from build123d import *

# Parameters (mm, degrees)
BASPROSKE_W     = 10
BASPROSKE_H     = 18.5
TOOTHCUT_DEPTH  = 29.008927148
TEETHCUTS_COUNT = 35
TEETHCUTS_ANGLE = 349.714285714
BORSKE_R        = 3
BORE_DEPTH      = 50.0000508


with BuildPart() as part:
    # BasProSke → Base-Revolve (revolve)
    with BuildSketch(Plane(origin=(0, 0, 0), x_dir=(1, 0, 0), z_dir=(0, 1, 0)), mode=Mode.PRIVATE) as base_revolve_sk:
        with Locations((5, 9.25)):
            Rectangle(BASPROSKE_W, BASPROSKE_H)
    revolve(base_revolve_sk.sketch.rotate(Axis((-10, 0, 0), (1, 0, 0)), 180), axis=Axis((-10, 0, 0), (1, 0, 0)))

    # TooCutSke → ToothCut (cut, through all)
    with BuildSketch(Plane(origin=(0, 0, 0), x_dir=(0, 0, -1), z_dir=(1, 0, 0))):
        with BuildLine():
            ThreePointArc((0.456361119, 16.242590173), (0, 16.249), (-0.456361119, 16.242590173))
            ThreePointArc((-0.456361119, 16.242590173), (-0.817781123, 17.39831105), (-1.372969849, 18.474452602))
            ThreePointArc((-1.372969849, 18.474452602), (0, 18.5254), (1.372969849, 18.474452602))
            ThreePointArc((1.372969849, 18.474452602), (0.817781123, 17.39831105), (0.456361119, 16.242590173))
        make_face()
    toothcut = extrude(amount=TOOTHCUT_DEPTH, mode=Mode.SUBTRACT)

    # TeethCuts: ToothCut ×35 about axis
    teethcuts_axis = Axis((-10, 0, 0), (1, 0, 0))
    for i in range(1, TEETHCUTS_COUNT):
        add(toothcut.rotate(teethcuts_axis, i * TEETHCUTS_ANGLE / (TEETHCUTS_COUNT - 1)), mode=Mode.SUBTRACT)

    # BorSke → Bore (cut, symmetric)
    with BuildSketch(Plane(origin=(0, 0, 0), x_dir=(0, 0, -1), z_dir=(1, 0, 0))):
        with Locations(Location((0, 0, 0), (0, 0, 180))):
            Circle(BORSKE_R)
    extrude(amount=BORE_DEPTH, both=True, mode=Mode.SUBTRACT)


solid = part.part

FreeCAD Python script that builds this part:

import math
import FreeCAD as App
import Part
import Sketcher
Q = App.Units.Quantity


def add_polygon(sketch, points):
    """Adds a closed chain of lines whose ends are joined by coincident constraints."""
    first, n = sketch.GeometryCount, len(points)
    for a, b in zip(points, points[1:] + points[:1]):
        sketch.addGeometry(Part.LineSegment(App.Vector(*a, 0), App.Vector(*b, 0)), False)
    for i in range(n):
        sketch.addConstraint(Sketcher.Constraint("Coincident", first + i, 2, first + (i + 1) % n, 1))

doc = App.newDocument("Part")
body = doc.addObject("PartDesign::Body", "Body")

sketch1 = body.newObject("Sketcher::SketchObject", "Sketch")
sketch1.AttachmentSupport = (doc.getObject("XZ_Plane"), [""])
sketch1.MapMode = "FlatFace"
add_polygon(sketch1, [(0, -18), (0, 0), (10, 0), (10, -18)])
sketch1.addConstraint([
    Sketcher.Constraint("Vertical", 0),
    Sketcher.Constraint("Horizontal", 1),
    Sketcher.Constraint("Vertical", 2),
    Sketcher.Constraint("Horizontal", 3),
    Sketcher.Constraint("Coincident", 0, 2, -1, 1),
    Sketcher.Constraint("DistanceX", 1, 1, 1, 2, Q("10 mm")),
    Sketcher.Constraint("DistanceY", 0, 1, 0, 2, Q("18.5 mm")),
])
revolution = body.newObject("PartDesign::Revolution", "Revolution")
revolution.Profile = sketch1
revolution.ReferenceAxis = (sketch1, ["H_Axis"])
revolution.Angle = 360

sketch2 = body.newObject("Sketcher::SketchObject", "Sketch001")
sketch2.AttachmentSupport = (doc.getObject("YZ_Plane"), [""])
sketch2.MapMode = "FlatFace"
sketch2.addGeometry([
    Part.ArcOfCircle(Part.Circle(App.Vector(0, 0, 0), App.Vector(0, 0, 1), 16.2), math.radians(-1.61), math.radians(1.61)),
    Part.ArcOfCircle(Part.Circle(App.Vector(14.7, -7.3, 0), App.Vector(0, 0, 1), 7), math.radians(57.75), math.radians(77.6)),
    Part.ArcOfCircle(Part.Circle(App.Vector(0, 0, 0), App.Vector(0, 0, 1), 18.5), math.radians(-4.25), math.radians(4.25)),
    Part.ArcOfCircle(Part.Circle(App.Vector(14.7, 7.3, 0), App.Vector(0, 0, 1), 7), math.radians(-77.6), math.radians(-57.75)),
], False)
sketch2.addConstraint([
    Sketcher.Constraint("Coincident", 0, 1, 1, 2),
    Sketcher.Constraint("Coincident", 1, 1, 2, 1),
    Sketcher.Constraint("Coincident", 2, 2, 3, 2),
    Sketcher.Constraint("Coincident", 3, 1, 0, 2),
    Sketcher.Constraint("Coincident", 0, 3, -1, 1),
    Sketcher.Constraint("Coincident", 2, 3, -1, 1),
    Sketcher.Constraint("Equal", 1, 3),
    Sketcher.Constraint("Symmetric", 1, 3, 3, 3, -1),
    Sketcher.Constraint("Radius", 1, Q("7 mm")),
    Sketcher.Constraint("Radius", 0, Q("16.249 mm")),
    Sketcher.Constraint("Radius", 2, Q("18.5254 mm")),
    Sketcher.Constraint("DistanceY", 1, 3, 1, 1, Q("5.92 mm")),
    Sketcher.Constraint("DistanceX", -1, 1, 1, 3, Q("14.739001 mm")),
])
pocket1 = body.newObject("PartDesign::Pocket", "Pocket")
pocket1.Profile = sketch2
pocket1.Type = "ThroughAll"
pocket1.Reversed = True
doc.recompute()

polarpattern = body.newObject("PartDesign::PolarPattern", "PolarPattern")
polarpattern.Originals = [pocket1]
polarpattern.Axis = (doc.getObject("X_Axis"), [""])
polarpattern.Angle = 360
polarpattern.Occurrences = 35
body.Tip = polarpattern

sketch3 = body.newObject("Sketcher::SketchObject", "Sketch002")
sketch3.AttachmentSupport = (doc.getObject("YZ_Plane"), [""])
sketch3.MapMode = "FlatFace"
sketch3.addGeometry(Part.Circle(App.Vector(0, 0, 0), App.Vector(0, 0, 1), 3), False)
sketch3.addConstraint([
    Sketcher.Constraint("Coincident", 0, 3, -1, 1),
    Sketcher.Constraint("Diameter", 0, Q("6 mm")),
])
pocket2 = body.newObject("PartDesign::Pocket", "Pocket001")
pocket2.Profile = sketch3
pocket2.Length = 100.000102
pocket2.Midplane = True

doc.recompute()
